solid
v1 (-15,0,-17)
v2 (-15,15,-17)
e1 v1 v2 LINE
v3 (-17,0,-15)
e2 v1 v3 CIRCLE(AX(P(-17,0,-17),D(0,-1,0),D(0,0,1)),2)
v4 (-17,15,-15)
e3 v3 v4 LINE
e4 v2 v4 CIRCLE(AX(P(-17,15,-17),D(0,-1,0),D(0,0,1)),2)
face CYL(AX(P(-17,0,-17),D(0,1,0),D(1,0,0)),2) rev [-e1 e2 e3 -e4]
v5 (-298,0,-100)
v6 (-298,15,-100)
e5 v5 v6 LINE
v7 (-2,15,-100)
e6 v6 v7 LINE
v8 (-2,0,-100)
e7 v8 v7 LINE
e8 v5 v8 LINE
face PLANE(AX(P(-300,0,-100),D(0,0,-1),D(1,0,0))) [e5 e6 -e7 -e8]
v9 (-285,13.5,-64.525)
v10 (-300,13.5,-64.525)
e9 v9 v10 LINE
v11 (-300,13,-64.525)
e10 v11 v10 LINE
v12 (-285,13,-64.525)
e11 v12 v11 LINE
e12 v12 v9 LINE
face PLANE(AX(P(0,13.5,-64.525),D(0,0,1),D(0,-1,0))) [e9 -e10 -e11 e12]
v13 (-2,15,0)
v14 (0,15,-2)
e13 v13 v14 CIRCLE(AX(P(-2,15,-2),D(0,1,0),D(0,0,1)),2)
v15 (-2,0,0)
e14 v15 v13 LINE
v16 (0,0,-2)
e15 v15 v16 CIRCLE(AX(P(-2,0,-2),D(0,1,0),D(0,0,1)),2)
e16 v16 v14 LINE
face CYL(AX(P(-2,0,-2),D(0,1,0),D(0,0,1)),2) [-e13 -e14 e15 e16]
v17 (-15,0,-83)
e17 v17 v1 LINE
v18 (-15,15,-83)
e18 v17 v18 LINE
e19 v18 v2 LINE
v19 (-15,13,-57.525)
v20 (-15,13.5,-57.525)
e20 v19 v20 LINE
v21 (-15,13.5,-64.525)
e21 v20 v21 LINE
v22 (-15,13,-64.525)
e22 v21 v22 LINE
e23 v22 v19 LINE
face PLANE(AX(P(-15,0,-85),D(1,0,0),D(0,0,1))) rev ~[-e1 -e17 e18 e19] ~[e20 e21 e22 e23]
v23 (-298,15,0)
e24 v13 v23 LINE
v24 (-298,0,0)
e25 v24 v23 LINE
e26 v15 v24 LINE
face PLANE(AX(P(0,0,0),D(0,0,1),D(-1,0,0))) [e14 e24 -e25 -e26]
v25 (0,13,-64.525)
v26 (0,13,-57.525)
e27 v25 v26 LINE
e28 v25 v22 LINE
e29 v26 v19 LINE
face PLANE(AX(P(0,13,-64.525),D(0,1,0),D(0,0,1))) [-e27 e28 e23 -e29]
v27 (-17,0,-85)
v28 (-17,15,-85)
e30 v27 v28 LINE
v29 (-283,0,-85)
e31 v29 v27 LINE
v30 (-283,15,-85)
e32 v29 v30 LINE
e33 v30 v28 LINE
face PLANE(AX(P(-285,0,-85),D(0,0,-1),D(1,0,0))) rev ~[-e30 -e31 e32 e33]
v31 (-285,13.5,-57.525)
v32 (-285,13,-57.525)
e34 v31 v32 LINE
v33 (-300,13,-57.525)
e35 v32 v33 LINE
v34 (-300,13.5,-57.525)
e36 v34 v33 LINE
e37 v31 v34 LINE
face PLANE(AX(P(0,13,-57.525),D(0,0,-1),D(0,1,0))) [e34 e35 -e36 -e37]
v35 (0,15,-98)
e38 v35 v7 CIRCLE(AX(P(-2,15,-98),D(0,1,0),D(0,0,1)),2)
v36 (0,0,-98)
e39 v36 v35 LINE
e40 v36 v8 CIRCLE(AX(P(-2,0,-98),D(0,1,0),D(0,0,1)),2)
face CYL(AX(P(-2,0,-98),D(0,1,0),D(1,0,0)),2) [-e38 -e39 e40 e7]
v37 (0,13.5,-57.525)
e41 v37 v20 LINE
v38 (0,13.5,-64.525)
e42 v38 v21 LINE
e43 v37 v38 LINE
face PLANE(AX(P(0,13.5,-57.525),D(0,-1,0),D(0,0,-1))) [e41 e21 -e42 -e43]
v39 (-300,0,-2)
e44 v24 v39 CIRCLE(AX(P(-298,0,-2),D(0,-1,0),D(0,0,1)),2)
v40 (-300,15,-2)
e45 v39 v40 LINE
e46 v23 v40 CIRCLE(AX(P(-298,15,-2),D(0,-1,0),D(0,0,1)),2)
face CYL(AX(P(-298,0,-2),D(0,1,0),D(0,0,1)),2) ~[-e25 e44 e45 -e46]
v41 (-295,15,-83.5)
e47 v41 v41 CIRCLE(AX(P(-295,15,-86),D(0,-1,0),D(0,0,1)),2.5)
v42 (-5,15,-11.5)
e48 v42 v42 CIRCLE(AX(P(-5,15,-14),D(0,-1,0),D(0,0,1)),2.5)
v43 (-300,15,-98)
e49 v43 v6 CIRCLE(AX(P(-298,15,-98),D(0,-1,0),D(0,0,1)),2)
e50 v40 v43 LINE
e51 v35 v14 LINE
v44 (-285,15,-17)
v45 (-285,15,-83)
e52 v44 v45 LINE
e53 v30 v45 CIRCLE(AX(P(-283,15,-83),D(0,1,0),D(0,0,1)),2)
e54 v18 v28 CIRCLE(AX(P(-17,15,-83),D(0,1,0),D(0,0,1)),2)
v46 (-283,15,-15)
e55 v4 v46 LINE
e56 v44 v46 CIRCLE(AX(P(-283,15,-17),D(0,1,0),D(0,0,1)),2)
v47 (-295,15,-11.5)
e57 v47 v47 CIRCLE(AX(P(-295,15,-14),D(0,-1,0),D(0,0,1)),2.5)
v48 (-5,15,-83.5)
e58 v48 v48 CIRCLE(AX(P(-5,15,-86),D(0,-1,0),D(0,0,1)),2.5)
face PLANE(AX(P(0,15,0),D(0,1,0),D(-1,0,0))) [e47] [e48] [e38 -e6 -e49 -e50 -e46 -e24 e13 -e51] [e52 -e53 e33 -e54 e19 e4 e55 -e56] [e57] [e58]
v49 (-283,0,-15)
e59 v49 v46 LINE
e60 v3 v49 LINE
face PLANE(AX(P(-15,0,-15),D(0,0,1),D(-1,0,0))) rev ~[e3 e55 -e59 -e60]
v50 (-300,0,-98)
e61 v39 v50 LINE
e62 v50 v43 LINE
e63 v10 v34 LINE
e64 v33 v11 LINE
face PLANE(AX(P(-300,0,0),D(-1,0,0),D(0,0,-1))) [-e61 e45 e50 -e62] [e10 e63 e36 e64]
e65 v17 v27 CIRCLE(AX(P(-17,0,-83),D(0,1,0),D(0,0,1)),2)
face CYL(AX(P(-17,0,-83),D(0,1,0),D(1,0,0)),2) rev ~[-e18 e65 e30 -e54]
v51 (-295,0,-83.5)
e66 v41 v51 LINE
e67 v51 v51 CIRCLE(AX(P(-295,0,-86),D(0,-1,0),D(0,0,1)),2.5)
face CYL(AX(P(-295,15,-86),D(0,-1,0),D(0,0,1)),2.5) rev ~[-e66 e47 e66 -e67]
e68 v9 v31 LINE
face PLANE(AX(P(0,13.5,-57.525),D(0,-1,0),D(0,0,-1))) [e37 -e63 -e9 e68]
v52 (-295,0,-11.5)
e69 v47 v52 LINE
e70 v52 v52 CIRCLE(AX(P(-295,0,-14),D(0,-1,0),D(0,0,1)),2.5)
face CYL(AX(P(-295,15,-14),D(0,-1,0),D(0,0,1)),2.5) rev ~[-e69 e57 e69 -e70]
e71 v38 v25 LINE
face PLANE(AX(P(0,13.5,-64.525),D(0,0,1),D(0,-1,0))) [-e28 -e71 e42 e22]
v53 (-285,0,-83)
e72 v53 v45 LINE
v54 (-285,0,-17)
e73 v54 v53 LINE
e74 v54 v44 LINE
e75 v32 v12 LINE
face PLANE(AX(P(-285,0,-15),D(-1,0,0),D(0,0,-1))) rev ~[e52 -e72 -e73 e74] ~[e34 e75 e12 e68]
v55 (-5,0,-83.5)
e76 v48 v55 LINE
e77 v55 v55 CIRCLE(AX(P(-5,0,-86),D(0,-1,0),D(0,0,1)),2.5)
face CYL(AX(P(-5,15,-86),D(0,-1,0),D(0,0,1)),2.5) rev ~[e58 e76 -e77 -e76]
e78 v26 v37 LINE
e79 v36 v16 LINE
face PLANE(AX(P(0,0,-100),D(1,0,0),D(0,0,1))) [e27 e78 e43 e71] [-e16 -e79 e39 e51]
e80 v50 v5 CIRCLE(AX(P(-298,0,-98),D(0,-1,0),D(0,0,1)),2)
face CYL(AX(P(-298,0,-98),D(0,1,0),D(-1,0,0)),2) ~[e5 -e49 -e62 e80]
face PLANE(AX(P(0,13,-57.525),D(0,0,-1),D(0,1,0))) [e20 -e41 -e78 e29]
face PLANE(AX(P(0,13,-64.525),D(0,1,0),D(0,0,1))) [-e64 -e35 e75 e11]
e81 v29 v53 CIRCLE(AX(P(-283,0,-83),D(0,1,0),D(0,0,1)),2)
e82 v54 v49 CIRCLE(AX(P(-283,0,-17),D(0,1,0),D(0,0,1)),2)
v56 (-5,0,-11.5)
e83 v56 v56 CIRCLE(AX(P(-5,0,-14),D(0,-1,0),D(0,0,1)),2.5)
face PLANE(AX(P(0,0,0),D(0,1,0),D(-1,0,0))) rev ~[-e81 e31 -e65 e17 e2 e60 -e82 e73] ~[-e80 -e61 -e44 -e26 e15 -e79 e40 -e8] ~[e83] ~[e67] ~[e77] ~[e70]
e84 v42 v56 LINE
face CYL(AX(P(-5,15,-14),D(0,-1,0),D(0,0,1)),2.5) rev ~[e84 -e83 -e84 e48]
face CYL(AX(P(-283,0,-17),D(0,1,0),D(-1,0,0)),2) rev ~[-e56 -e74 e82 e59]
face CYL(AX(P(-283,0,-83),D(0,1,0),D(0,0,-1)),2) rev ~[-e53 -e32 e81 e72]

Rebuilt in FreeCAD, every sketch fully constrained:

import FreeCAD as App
import Part
import Sketcher


def edges_at(feature, points):
    """Names of the edges that pass closest to the given points."""
    edges = feature.Shape.Edges
    near = lambda p: min(range(len(edges)), key=lambda i: edges[i].distToShape(Part.Vertex(*p))[0])
    return sorted({f"Edge{near(p) + 1}" for p in points})

doc = App.newDocument("Part")
body = doc.addObject("PartDesign::Body", "Body")

sketch1 = body.newObject("Sketcher::SketchObject", "Sketch")
sketch1.AttachmentSupport = (doc.getObject("XZ_Plane"), [""])
sketch1.MapMode = "FlatFace"
sketch1.addGeometry(Part.LineSegment(App.Vector(-300, 0, 0), App.Vector(0, 0, 0)), False)
sketch1.addGeometry(Part.LineSegment(App.Vector(0, 0, 0), App.Vector(0, -100, 0)), False)
sketch1.addGeometry(Part.LineSegment(App.Vector(0, -100, 0), App.Vector(-300, -100, 0)), False)
sketch1.addGeometry(Part.LineSegment(App.Vector(-300, -100, 0), App.Vector(-300, 0, 0)), False)
sketch1.addConstraint(Sketcher.Constraint("Coincident", 0, 2, 1, 1))
sketch1.addConstraint(Sketcher.Constraint("Coincident", 1, 2, 2, 1))
sketch1.addConstraint(Sketcher.Constraint("Coincident", 2, 2, 3, 1))
sketch1.addConstraint(Sketcher.Constraint("Coincident", 3, 2, 0, 1))
sketch1.addConstraint(Sketcher.Constraint("Horizontal", 0))
sketch1.addConstraint(Sketcher.Constraint("Vertical", 1))
sketch1.addConstraint(Sketcher.Constraint("Horizontal", 2))
sketch1.addConstraint(Sketcher.Constraint("Vertical", 3))
sketch1.addConstraint(Sketcher.Constraint("Coincident", 0, 2, -1, 1))
sketch1.addConstraint(Sketcher.Constraint("DistanceX", 0, 1, 0, 2, 300.0))
sketch1.addConstraint(Sketcher.Constraint("DistanceY", 1, 2, 1, 1, 100.0))
pad1 = body.newObject("PartDesign::Pad", "Pad")
pad1.Profile = sketch1
pad1.Length = 15
pad1.Reversed = True

sketch2 = body.newObject("Sketcher::SketchObject", "Sketch001")
sketch2.AttachmentSupport = (doc.getObject("XZ_Plane"), [""])
sketch2.MapMode = "FlatFace"
sketch2.addGeometry(Part.LineSegment(App.Vector(-285, -15, 0), App.Vector(-15, -15, 0)), False)
sketch2.addGeometry(Part.LineSegment(App.Vector(-15, -15, 0), App.Vector(-15, -85, 0)), False)
sketch2.addGeometry(Part.LineSegment(App.Vector(-15, -85, 0), App.Vector(-285, -85, 0)), False)
sketch2.addGeometry(Part.LineSegment(App.Vector(-285, -85, 0), App.Vector(-285, -15, 0)), False)
sketch2.addConstraint(Sketcher.Constraint("Coincident", 0, 2, 1, 1))
sketch2.addConstraint(Sketcher.Constraint("Coincident", 1, 2, 2, 1))
sketch2.addConstraint(Sketcher.Constraint("Coincident", 2, 2, 3, 1))
sketch2.addConstraint(Sketcher.Constraint("Coincident", 3, 2, 0, 1))
sketch2.addConstraint(Sketcher.Constraint("Horizontal", 0))
sketch2.addConstraint(Sketcher.Constraint("Vertical", 1))
sketch2.addConstraint(Sketcher.Constraint("Horizontal", 2))
sketch2.addConstraint(Sketcher.Constraint("Vertical", 3))
sketch2.addConstraint(Sketcher.Constraint("DistanceX", 0, 1, 0, 2, 270.0))
sketch2.addConstraint(Sketcher.Constraint("DistanceY", 1, 2, 1, 1, 70.0))
sketch2.addConstraint(Sketcher.Constraint("DistanceX", 0, 2, -1, 1, 15.0))
sketch2.addConstraint(Sketcher.Constraint("DistanceY", 0, 2, -1, 1, 15.0))
pocket1 = body.newObject("PartDesign::Pocket", "Pocket")
pocket1.Profile = sketch2
pocket1.Length = 15
doc.recompute()

fillet = body.newObject("PartDesign::Fillet", "Fillet")
fillet.Base = (pocket1, edges_at(pocket1, [
    (-285, 7.5, -85),
    (-15, 7.5, -85),
    (-15, 7.5, -15),
    (-285, 7.5, -15),
    (-300, 7.5, 0),
    (-300, 7.5, -100),
    (0, 7.5, -100),
    (0, 7.5, 0),
]))
fillet.Radius = 2

sketch3 = body.newObject("Sketcher::SketchObject", "Sketch002")
sketch3.AttachmentSupport = (doc.getObject("XZ_Plane"), [""])
sketch3.MapMode = "FlatFace"
sketch3.AttachmentOffset = App.Placement(App.Vector(0, 0, -15), App.Rotation())
sketch3.addGeometry(Part.Circle(App.Vector(-5, -86, 0), App.Vector(0, 0, 1), 2.5), False)
sketch3.addGeometry(Part.Circle(App.Vector(-5, -14, 0), App.Vector(0, 0, 1), 2.5), False)
sketch3.addGeometry(Part.Circle(App.Vector(-295, -86, 0), App.Vector(0, 0, 1), 2.5), False)
sketch3.addGeometry(Part.Circle(App.Vector(-295, -14, 0), App.Vector(0, 0, 1), 2.5), False)
sketch3.addConstraint(Sketcher.Constraint("Equal", 0, 1))
sketch3.addConstraint(Sketcher.Constraint("Equal", 1, 2))
sketch3.addConstraint(Sketcher.Constraint("Equal", 2, 3))
sketch3.addConstraint(Sketcher.Constraint("Horizontal", 0, 3, 2, 3))
sketch3.addConstraint(Sketcher.Constraint("Horizontal", 1, 3, 3, 3))
sketch3.addConstraint(Sketcher.Constraint("Vertical", 0, 3, 1, 3))
sketch3.addConstraint(Sketcher.Constraint("Vertical", 2, 3, 3, 3))
sketch3.addConstraint(Sketcher.Constraint("Diameter", 0, 5.0))
sketch3.addConstraint(Sketcher.Constraint("DistanceX", 0, 3, -1, 1, 5.0))
sketch3.addConstraint(Sketcher.Constraint("DistanceY", 0, 3, -1, 1, 86.0))
sketch3.addConstraint(Sketcher.Constraint("DistanceY", 1, 3, -1, 1, 14.0))
sketch3.addConstraint(Sketcher.Constraint("DistanceX", 2, 3, -1, 1, 295.0))
doc.recompute()
hole = body.newObject("PartDesign::Hole", "Hole")
hole.Profile = sketch3
hole.ThreadType = "None"
hole.Diameter = 5
hole.DepthType = "Dimension"
hole.Depth = 15
hole.DrillPoint = "Flat"
hole.Reversed = True

sketch4 = body.newObject("Sketcher::SketchObject", "Sketch003")
sketch4.AttachmentSupport = (doc.getObject("YZ_Plane"), [""])
sketch4.MapMode = "FlatFace"
sketch4.addGeometry(Part.LineSegment(App.Vector(13.5, -64.5, 0), App.Vector(13.5, -57.5, 0)), False)
sketch4.addGeometry(Part.LineSegment(App.Vector(13.5, -57.5, 0), App.Vector(13, -57.5, 0)), False)
sketch4.addGeometry(Part.LineSegment(App.Vector(13, -57.5, 0), App.Vector(13, -64.5, 0)), False)
sketch4.addGeometry(Part.LineSegment(App.Vector(13, -64.5, 0), App.Vector(13.5, -64.5, 0)), False)
sketch4.addConstraint(Sketcher.Constraint("Coincident", 0, 2, 1, 1))
sketch4.addConstraint(Sketcher.Constraint("Coincident", 1, 2, 2, 1))
sketch4.addConstraint(Sketcher.Constraint("Coincident", 2, 2, 3, 1))
sketch4.addConstraint(Sketcher.Constraint("Coincident", 3, 2, 0, 1))
sketch4.addConstraint(Sketcher.Constraint("Vertical", 0))
sketch4.addConstraint(Sketcher.Constraint("Horizontal", 1))
sketch4.addConstraint(Sketcher.Constraint("Vertical", 2))
sketch4.addConstraint(Sketcher.Constraint("Horizontal", 3))
sketch4.addConstraint(Sketcher.Constraint("DistanceY", 0, 1, 0, 2, 7.0))
sketch4.addConstraint(Sketcher.Constraint("DistanceX", 1, 2, 1, 1, 0.5))
sketch4.addConstraint(Sketcher.Constraint("DistanceX", -1, 1, 1, 2, 13.0))
sketch4.addConstraint(Sketcher.Constraint("DistanceY", 0, 2, -1, 1, 57.525))
pocket2 = body.newObject("PartDesign::Pocket", "Pocket001")
pocket2.Profile = sketch4
pocket2.Type = "ThroughAll"

doc.recompute()
